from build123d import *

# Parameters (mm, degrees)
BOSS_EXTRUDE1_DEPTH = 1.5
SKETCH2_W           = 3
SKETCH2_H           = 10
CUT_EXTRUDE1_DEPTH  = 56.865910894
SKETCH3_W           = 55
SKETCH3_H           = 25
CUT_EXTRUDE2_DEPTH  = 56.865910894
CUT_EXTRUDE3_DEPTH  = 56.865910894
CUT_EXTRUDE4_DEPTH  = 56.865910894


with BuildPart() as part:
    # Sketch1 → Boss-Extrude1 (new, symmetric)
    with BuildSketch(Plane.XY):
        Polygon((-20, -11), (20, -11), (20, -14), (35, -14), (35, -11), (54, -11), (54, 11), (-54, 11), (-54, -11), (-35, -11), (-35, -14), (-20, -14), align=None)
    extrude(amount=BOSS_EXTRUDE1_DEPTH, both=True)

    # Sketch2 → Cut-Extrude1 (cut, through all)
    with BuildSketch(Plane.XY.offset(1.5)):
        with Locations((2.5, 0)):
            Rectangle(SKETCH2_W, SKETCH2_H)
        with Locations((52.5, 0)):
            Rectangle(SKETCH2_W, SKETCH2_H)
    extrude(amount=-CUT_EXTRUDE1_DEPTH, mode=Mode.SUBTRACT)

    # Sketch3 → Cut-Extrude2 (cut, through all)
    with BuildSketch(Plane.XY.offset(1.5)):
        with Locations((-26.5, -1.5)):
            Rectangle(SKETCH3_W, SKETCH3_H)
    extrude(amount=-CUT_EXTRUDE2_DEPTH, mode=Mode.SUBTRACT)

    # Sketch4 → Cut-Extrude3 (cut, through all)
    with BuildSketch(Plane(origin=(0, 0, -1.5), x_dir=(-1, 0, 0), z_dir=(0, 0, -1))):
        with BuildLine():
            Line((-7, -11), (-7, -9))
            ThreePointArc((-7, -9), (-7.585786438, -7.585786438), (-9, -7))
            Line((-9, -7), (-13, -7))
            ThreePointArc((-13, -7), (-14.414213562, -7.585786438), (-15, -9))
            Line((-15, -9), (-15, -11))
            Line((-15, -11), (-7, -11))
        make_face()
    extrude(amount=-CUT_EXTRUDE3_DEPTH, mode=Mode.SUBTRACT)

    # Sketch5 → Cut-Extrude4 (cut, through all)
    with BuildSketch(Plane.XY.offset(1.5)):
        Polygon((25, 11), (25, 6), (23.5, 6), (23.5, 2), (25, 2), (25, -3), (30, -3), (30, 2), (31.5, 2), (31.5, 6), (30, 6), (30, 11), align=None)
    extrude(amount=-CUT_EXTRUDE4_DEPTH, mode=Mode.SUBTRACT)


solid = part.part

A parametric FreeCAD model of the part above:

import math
import FreeCAD as App
import Part
import Sketcher

V = App.Vector


def add_polygon(sketch, points):
    """Adds a closed chain of lines whose ends are joined by coincident constraints."""
    first, n = sketch.GeometryCount, len(points)
    for a, b in zip(points, points[1:] + points[:1]):
        sketch.addGeometry(Part.LineSegment(App.Vector(*a, 0), App.Vector(*b, 0)), False)
    for i in range(n):
        sketch.addConstraint(Sketcher.Constraint("Coincident", first + i, 2, first + (i + 1) % n, 1))

doc = App.newDocument("Part")
body = doc.addObject("PartDesign::Body", "Body")

sketch1 = doc.addObject("Sketcher::SketchObject", "Sketch")
body.addObject(sketch1)
sketch1.AttachmentSupport = (doc.XY_Plane, [""])
sketch1.MapMode = "FlatFace"
add_polygon(sketch1, [(-20, -11), (20, -11), (20, -14), (35, -14), (35, -11), (54, -11), (54, 11), (-54, 11), (-54, -11), (-35, -11), (-35, -14), (-20, -14)])
sketch1.addConstraint([
    Sketcher.Constraint("Horizontal", 0),
    Sketcher.Constraint("Vertical", 1),
    Sketcher.Constraint("Horizontal", 2),
    Sketcher.Constraint("Vertical", 3),
    Sketcher.Constraint("Horizontal", 4),
    Sketcher.Constraint("Vertical", 5),
    Sketcher.Constraint("Horizontal", 6),
    Sketcher.Constraint("Vertical", 7),
    Sketcher.Constraint("Horizontal", 8),
    Sketcher.Constraint("Vertical", 9),
    Sketcher.Constraint("Horizontal", 10),
    Sketcher.Constraint("Vertical", 11),
    Sketcher.Constraint("Symmetric", 4, 2, 6, 2, -1, 1),
    Sketcher.Constraint("Symmetric", 3, 2, 8, 2, -2),
    Sketcher.Constraint("Symmetric", 1, 2, 10, 2, -2),
    Sketcher.Constraint("Horizontal", 0, 2, 3, 2),
    Sketcher.Constraint("DistanceX", 0, 1, 0, 2, 40.0),
    Sketcher.Constraint("DistanceX", 2, 1, 2, 2, 15.0),
    Sketcher.Constraint("DistanceX", 4, 1, 4, 2, 19.0),
    Sketcher.Constraint("DistanceY", 1, 2, 1, 1, 3.0),
    Sketcher.Constraint("DistanceY", 5, 1, 5, 2, 22.0),
])
pad1 = doc.addObject("PartDesign::Pad", "Pad")
body.addObject(pad1)
pad1.Profile = sketch1
pad1.Length = 3
pad1.Midplane = True

sketch2 = doc.addObject("Sketcher::SketchObject", "Sketch001")
body.addObject(sketch2)
sketch2.AttachmentSupport = (doc.XY_Plane, [""])
sketch2.MapMode = "FlatFace"
sketch2.AttachmentOffset = App.Placement(V(0, 0, 1.5), App.Rotation())
add_polygon(sketch2, [(1, 5), (1, -5), (4, -5), (4, 5)])
add_polygon(sketch2, [(51, 5), (51, -5), (54, -5), (54, 5)])
sketch2.addConstraint([
    Sketcher.Constraint("Vertical", 0),
    Sketcher.Constraint("Horizontal", 1),
    Sketcher.Constraint("Vertical", 2),
    Sketcher.Constraint("Horizontal", 3),
    Sketcher.Constraint("Vertical", 4),
    Sketcher.Constraint("Horizontal", 5),
    Sketcher.Constraint("Vertical", 6),
    Sketcher.Constraint("Horizontal", 7),
    Sketcher.Constraint("Horizontal", 1, 2, 4, 2),
    Sketcher.Constraint("Horizontal", 3, 2, 6, 2),
    Sketcher.Constraint("Equal", 3, 5),
    Sketcher.Constraint("DistanceX", 1, 1, 1, 2, 3.0),
    Sketcher.Constraint("DistanceY", 0, 2, 0, 1, 10.0),
    Sketcher.Constraint("DistanceX", -1, 1, 0, 2, 1.0),
    Sketcher.Constraint("DistanceY", 0, 2, -1, 1, 5.0),
    Sketcher.Constraint("DistanceX", -1, 1, 4, 2, 51.0),
])
pocket1 = doc.addObject("PartDesign::Pocket", "Pocket")
body.addObject(pocket1)
pocket1.Profile = sketch2
pocket1.Type = "ThroughAll"

sketch3 = doc.addObject("Sketcher::SketchObject", "Sketch002")
body.addObject(sketch3)
sketch3.AttachmentSupport = (doc.XY_Plane, [""])
sketch3.MapMode = "FlatFace"
sketch3.AttachmentOffset = App.Placement(V(0, 0, 1.5), App.Rotation())
add_polygon(sketch3, [(-54, 11), (-54, -14), (1, -14), (1, 11)])
sketch3.addConstraint([
    Sketcher.Constraint("Vertical", 0),
    Sketcher.Constraint("Horizontal", 1),
    Sketcher.Constraint("Vertical", 2),
    Sketcher.Constraint("Horizontal", 3),
    Sketcher.Constraint("DistanceX", 1, 1, 1, 2, 55.0),
    Sketcher.Constraint("DistanceY", 0, 2, 0, 1, 25.0),
    Sketcher.Constraint("DistanceX", 0, 2, -1, 1, 54.0),
    Sketcher.Constraint("DistanceY", 0, 2, -1, 1, 14.0),
])
pocket2 = doc.addObject("PartDesign::Pocket", "Pocket001")
body.addObject(pocket2)
pocket2.Profile = sketch3
pocket2.Type = "ThroughAll"

sketch4 = doc.addObject("Sketcher::SketchObject", "Sketch003")
body.addObject(sketch4)
sketch4.AttachmentSupport = (doc.XY_Plane, [""])
sketch4.MapMode = "FlatFace"
sketch4.AttachmentOffset = App.Placement(V(0, 0, -1.5), App.Rotation())
sketch4.addGeometry([
    Part.LineSegment(V(7, -11, 0), V(7, -9, 0)),
    Part.ArcOfCircle(Part.Circle(V(9, -9, 0), V(0, 0, 1), 2), math.radians(90), math.radians(180)),
    Part.LineSegment(V(9, -7, 0), V(13, -7, 0)),
    Part.ArcOfCircle(Part.Circle(V(13, -9, 0), V(0, 0, 1), 2), math.radians(0), math.radians(90)),
    Part.LineSegment(V(15, -9, 0), V(15, -11, 0)),
    Part.LineSegment(V(15, -11, 0), V(7, -11, 0)),
], False)
sketch4.addConstraint([
    Sketcher.Constraint("Tangent", 0, 2, 1, 2),
    Sketcher.Constraint("Tangent", 1, 1, 2, 1),
    Sketcher.Constraint("Tangent", 2, 2, 3, 2),
    Sketcher.Constraint("Tangent", 3, 1, 4, 1),
    Sketcher.Constraint("Coincident", 4, 2, 5, 1),
    Sketcher.Constraint("Coincident", 5, 2, 0, 1),
    Sketcher.Constraint("Vertical", 0),
    Sketcher.Constraint("Horizontal", 2),
    Sketcher.Constraint("Vertical", 4),
    Sketcher.Constraint("Horizontal", 5),
    Sketcher.Constraint("Equal", 1, 3),
    Sketcher.Constraint("Radius", 1, 2.0),
    Sketcher.Constraint("DistanceX", 2, 1, 2, 2, 4.0),
    Sketcher.Constraint("DistanceY", 0, 1, 0, 2, 2.0),
    Sketcher.Constraint("DistanceX", -1, 1, 1, 3, 9.0),
    Sketcher.Constraint("DistanceY", 1, 3, -1, 1, 9.0),
])
pocket3 = doc.addObject("PartDesign::Pocket", "Pocket002")
body.addObject(pocket3)
pocket3.Profile = sketch4
pocket3.Type = "ThroughAll"
pocket3.Reversed = True

sketch5 = doc.addObject("Sketcher::SketchObject", "Sketch004")
body.addObject(sketch5)
sketch5.AttachmentSupport = (doc.XY_Plane, [""])
sketch5.MapMode = "FlatFace"
sketch5.AttachmentOffset = App.Placement(V(0, 0, 1.5), App.Rotation())
add_polygon(sketch5, [(25, 11), (25, 6), (23.5, 6), (23.5, 2), (25, 2), (25, -3), (30, -3), (30, 2), (31.5, 2), (31.5, 6), (30, 6), (30, 11)])
sketch5.addConstraint([
    Sketcher.Constraint("Vertical", 0),
    Sketcher.Constraint("Horizontal", 1),
    Sketcher.Constraint("Vertical", 2),
    Sketcher.Constraint("Horizontal", 3),
    Sketcher.Constraint("Vertical", 4),
    Sketcher.Constraint("Horizontal", 5),
    Sketcher.Constraint("Vertical", 6),
    Sketcher.Constraint("Horizontal", 7),
    Sketcher.Constraint("Vertical", 8),
    Sketcher.Constraint("Horizontal", 9),
    Sketcher.Constraint("Vertical", 10),
    Sketcher.Constraint("Horizontal", 11),
    Sketcher.Constraint("Horizontal", 3, 2, 6, 2),
    Sketcher.Constraint("Horizontal", 1, 2, 8, 2),
    Sketcher.Constraint("Vertical", 0, 2, 3, 2),
    Sketcher.Constraint("Vertical", 6, 2, 9, 2),
    Sketcher.Constraint("Equal", 3, 7),
    Sketcher.Constraint("Equal", 11, 0),
    Sketcher.Constraint("Equal", 0, 4),
    Sketcher.Constraint("DistanceX", 5, 1, 5, 2, 5.0),
    Sketcher.Constraint("DistanceY", 2, 2, 2, 1, 4.0),
    Sketcher.Constraint("DistanceX", 1, 2, 1, 1, 1.5),
    Sketcher.Constraint("DistanceX", -1, 1, 0, 2, 25.0),
    Sketcher.Constraint("DistanceY", -1, 1, 0, 2, 6.0),
])
pocket4 = doc.addObject("PartDesign::Pocket", "Pocket003")
body.addObject(pocket4)
pocket4.Profile = sketch5
pocket4.Type = "ThroughAll"

doc.recompute()
